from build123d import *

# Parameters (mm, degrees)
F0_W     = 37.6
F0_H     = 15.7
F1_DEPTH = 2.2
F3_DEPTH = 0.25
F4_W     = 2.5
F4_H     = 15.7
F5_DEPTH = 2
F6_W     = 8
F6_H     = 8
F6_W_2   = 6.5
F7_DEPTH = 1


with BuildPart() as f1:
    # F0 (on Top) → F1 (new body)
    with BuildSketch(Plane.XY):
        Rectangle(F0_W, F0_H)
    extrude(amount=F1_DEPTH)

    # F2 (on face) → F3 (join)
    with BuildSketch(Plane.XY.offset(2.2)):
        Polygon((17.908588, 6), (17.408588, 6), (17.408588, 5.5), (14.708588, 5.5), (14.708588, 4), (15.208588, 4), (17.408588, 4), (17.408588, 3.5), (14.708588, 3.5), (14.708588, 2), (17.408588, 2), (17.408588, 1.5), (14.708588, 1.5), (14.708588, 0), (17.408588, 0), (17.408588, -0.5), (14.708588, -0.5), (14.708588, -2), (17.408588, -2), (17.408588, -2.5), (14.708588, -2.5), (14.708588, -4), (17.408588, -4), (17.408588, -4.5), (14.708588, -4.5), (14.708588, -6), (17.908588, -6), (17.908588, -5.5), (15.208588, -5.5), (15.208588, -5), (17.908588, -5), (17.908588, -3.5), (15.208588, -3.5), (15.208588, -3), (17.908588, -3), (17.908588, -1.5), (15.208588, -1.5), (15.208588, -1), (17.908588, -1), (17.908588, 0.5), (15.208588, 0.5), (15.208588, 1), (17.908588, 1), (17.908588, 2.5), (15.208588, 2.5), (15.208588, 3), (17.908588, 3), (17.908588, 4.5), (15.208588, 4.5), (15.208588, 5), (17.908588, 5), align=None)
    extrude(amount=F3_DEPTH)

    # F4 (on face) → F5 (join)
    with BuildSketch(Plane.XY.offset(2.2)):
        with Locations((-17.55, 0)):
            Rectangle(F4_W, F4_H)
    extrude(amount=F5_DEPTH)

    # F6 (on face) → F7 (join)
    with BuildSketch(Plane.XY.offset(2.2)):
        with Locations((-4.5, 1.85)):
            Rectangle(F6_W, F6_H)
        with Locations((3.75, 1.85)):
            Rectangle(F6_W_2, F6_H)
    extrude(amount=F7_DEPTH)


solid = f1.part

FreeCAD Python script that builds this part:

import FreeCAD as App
import Part
import Sketcher

V = App.Vector

doc = App.newDocument("Part")
body = doc.addObject("PartDesign::Body", "Body")

sketch1 = doc.addObject("Sketcher::SketchObject", "Sketch")
body.addObject(sketch1)
sketch1.AttachmentSupport = (doc.XY_Plane, [""])
sketch1.MapMode = "FlatFace"
sketch1.addGeometry([
    Part.LineSegment(V(-19, 8, 0), V(-19, -8, 0)),
    Part.LineSegment(V(-19, -8, 0), V(19, -8, 0)),
    Part.LineSegment(V(19, -8, 0), V(19, 8, 0)),
    Part.LineSegment(V(19, 8, 0), V(-19, 8, 0)),
], False)
sketch1.addConstraint([
    Sketcher.Constraint("Coincident", 0, 2, 1, 1),
    Sketcher.Constraint("Coincident", 1, 2, 2, 1),
    Sketcher.Constraint("Coincident", 2, 2, 3, 1),
    Sketcher.Constraint("Coincident", 3, 2, 0, 1),
    Sketcher.Constraint("Vertical", 0),
    Sketcher.Constraint("Horizontal", 1),
    Sketcher.Constraint("Vertical", 2),
    Sketcher.Constraint("Horizontal", 3),
    Sketcher.Constraint("Symmetric", 0, 2, 2, 2, -1, 1),
    Sketcher.Constraint("DistanceX", 1, 1, 1, 2, 37.6),
    Sketcher.Constraint("DistanceY", 0, 2, 0, 1, 15.7),
])
pad1 = doc.addObject("PartDesign::Pad", "Pad")
body.addObject(pad1)
pad1.Profile = sketch1
pad1.Length = 2.2

sketch2 = doc.addObject("Sketcher::SketchObject", "Sketch001")
body.addObject(sketch2)
sketch2.AttachmentSupport = (doc.XY_Plane, [""])
sketch2.MapMode = "FlatFace"
sketch2.AttachmentOffset = App.Placement(V(0, 0, 2.2), App.Rotation())
sketch2.addGeometry([
    Part.LineSegment(V(17.9, 6, 0), V(17.4, 6, 0)),
    Part.LineSegment(V(17.4, 6, 0), V(17.4, 5.5, 0)),
    Part.LineSegment(V(17.4, 5.5, 0), V(14.7, 5.5, 0)),
    Part.LineSegment(V(14.7, 5.5, 0), V(14.7, 4, 0)),
    Part.LineSegment(V(14.7, 4, 0), V(17.4, 4, 0)),
    Part.LineSegment(V(17.4, 4, 0), V(17.4, 3.5, 0)),
    Part.LineSegment(V(17.4, 3.5, 0), V(14.7, 3.5, 0)),
    Part.LineSegment(V(14.7, 3.5, 0), V(14.7, 2, 0)),
    Part.LineSegment(V(14.7, 2, 0), V(17.4, 2, 0)),
    Part.LineSegment(V(17.4, 2, 0), V(17.4, 1.5, 0)),
    Part.LineSegment(V(17.4, 1.5, 0), V(14.7, 1.5, 0)),
    Part.LineSegment(V(14.7, 1.5, 0), V(14.7, 0, 0)),
    Part.LineSegment(V(14.7, 0, 0), V(17.4, 0, 0)),
    Part.LineSegment(V(17.4, 0, 0), V(17.4, -0.5, 0)),
    Part.LineSegment(V(17.4, -0.5, 0), V(14.7, -0.5, 0)),
    Part.LineSegment(V(14.7, -0.5, 0), V(14.7, -2, 0)),
    Part.LineSegment(V(14.7, -2, 0), V(17.4, -2, 0)),
    Part.LineSegment(V(17.4, -2, 0), V(17.4, -2.5, 0)),
    Part.LineSegment(V(17.4, -2.5, 0), V(14.7, -2.5, 0)),
    Part.LineSegment(V(14.7, -2.5, 0), V(14.7, -4, 0)),
    Part.LineSegment(V(14.7, -4, 0), V(17.4, -4, 0)),
    Part.LineSegment(V(17.4, -4, 0), V(17.4, -4.5, 0)),
    Part.LineSegment(V(17.4, -4.5, 0), V(14.7, -4.5, 0)),
    Part.LineSegment(V(14.7, -4.5, 0), V(14.7, -6, 0)),
    Part.LineSegment(V(14.7, -6, 0), V(17.9, -6, 0)),
    Part.LineSegment(V(17.9, -6, 0), V(17.9, -5.5, 0)),
    Part.LineSegment(V(17.9, -5.5, 0), V(15.2, -5.5, 0)),
    Part.LineSegment(V(15.2, -5.5, 0), V(15.2, -5, 0)),
    Part.LineSegment(V(15.2, -5, 0), V(17.9, -5, 0)),
    Part.LineSegment(V(17.9, -5, 0), V(17.9, -3.5, 0)),
    Part.LineSegment(V(17.9, -3.5, 0), V(15.2, -3.5, 0)),
    Part.LineSegment(V(15.2, -3.5, 0), V(15.2, -3, 0)),
    Part.LineSegment(V(15.2, -3, 0), V(17.9, -3, 0)),
    Part.LineSegment(V(17.9, -3, 0), V(17.9, -1.5, 0)),
    Part.LineSegment(V(17.9, -1.5, 0), V(15.2, -1.5, 0)),
    Part.LineSegment(V(15.2, -1.5, 0), V(15.2, -1, 0)),
    Part.LineSegment(V(15.2, -1, 0), V(17.9, -1, 0)),
    Part.LineSegment(V(17.9, -1, 0), V(17.9, 0.5, 0)),
    Part.LineSegment(V(17.9, 0.5, 0), V(15.2, 0.5, 0)),
    Part.LineSegment(V(15.2, 0.5, 0), V(15.2, 1, 0)),
    Part.LineSegment(V(15.2, 1, 0), V(17.9, 1, 0)),
    Part.LineSegment(V(17.9, 1, 0), V(17.9, 2.5, 0)),
    Part.LineSegment(V(17.9, 2.5, 0), V(15.2, 2.5, 0)),
    Part.LineSegment(V(15.2, 2.5, 0), V(15.2, 3, 0)),
    Part.LineSegment(V(15.2, 3, 0), V(17.9, 3, 0)),
    Part.LineSegment(V(17.9, 3, 0), V(17.9, 4.5, 0)),
    Part.LineSegment(V(17.9, 4.5, 0), V(15.2, 4.5, 0)),
    Part.LineSegment(V(15.2, 4.5, 0), V(15.2, 5, 0)),
    Part.LineSegment(V(15.2, 5, 0), V(17.9, 5, 0)),
    Part.LineSegment(V(17.9, 5, 0), V(17.9, 6, 0)),
], False)
sketch2.addConstraint([
    Sketcher.Constraint("Coincident", 0, 2, 1, 1),
    Sketcher.Constraint("Coincident", 1, 2, 2, 1),
    Sketcher.Constraint("Coincident", 2, 2, 3, 1),
    Sketcher.Constraint("Coincident", 3, 2, 4, 1),
    Sketcher.Constraint("Coincident", 4, 2, 5, 1),
    Sketcher.Constraint("Coincident", 5, 2, 6, 1),
    Sketcher.Constraint("Coincident", 6, 2, 7, 1),
    Sketcher.Constraint("Coincident", 7, 2, 8, 1),
    Sketcher.Constraint("Coincident", 8, 2, 9, 1),
    Sketcher.Constraint("Coincident", 9, 2, 10, 1),
    Sketcher.Constraint("Coincident", 10, 2, 11, 1),
    Sketcher.Constraint("Coincident", 11, 2, 12, 1),
    Sketcher.Constraint("Coincident", 12, 2, 13, 1),
    Sketcher.Constraint("Coincident", 13, 2, 14, 1),
    Sketcher.Constraint("Coincident", 14, 2, 15, 1),
    Sketcher.Constraint("Coincident", 15, 2, 16, 1),
    Sketcher.Constraint("Coincident", 16, 2, 17, 1),
    Sketcher.Constraint("Coincident", 17, 2, 18, 1),
    Sketcher.Constraint("Coincident", 18, 2, 19, 1),
    Sketcher.Constraint("Coincident", 19, 2, 20, 1),
    Sketcher.Constraint("Coincident", 20, 2, 21, 1),
    Sketcher.Constraint("Coincident", 21, 2, 22, 1),
    Sketcher.Constraint("Coincident", 22, 2, 23, 1),
    Sketcher.Constraint("Coincident", 23, 2, 24, 1),
    Sketcher.Constraint("Coincident", 24, 2, 25, 1),
    Sketcher.Constraint("Coincident", 25, 2, 26, 1),
    Sketcher.Constraint("Coincident", 26, 2, 27, 1),
    Sketcher.Constraint("Coincident", 27, 2, 28, 1),
    Sketcher.Constraint("Coincident", 28, 2, 29, 1),
    Sketcher.Constraint("Coincident", 29, 2, 30, 1),
    Sketcher.Constraint("Coincident", 30, 2, 31, 1),
    Sketcher.Constraint("Coincident", 31, 2, 32, 1),
    Sketcher.Constraint("Coincident", 32, 2, 33, 1),
    Sketcher.Constraint("Coincident", 33, 2, 34, 1),
    Sketcher.Constraint("Coincident", 34, 2, 35, 1),
    Sketcher.Constraint("Coincident", 35, 2, 36, 1),
    Sketcher.Constraint("Coincident", 36, 2, 37, 1),
    Sketcher.Constraint("Coincident", 37, 2, 38, 1),
    Sketcher.Constraint("Coincident", 38, 2, 39, 1),
    Sketcher.Constraint("Coincident", 39, 2, 40, 1),
    Sketcher.Constraint("Coincident", 40, 2, 41, 1),
    Sketcher.Constraint("Coincident", 41, 2, 42, 1),
    Sketcher.Constraint("Coincident", 42, 2, 43, 1),
    Sketcher.Constraint("Coincident", 43, 2, 44, 1),
    Sketcher.Constraint("Coincident", 44, 2, 45, 1),
    Sketcher.Constraint("Coincident", 45, 2, 46, 1),
    Sketcher.Constraint("Coincident", 46, 2, 47, 1),
    Sketcher.Constraint("Coincident", 47, 2, 48, 1),
    Sketcher.Constraint("Coincident", 48, 2, 49, 1),
    Sketcher.Constraint("Coincident", 49, 2, 0, 1),
    Sketcher.Constraint("Horizontal", 0),
    Sketcher.Constraint("Vertical", 1),
    Sketcher.Constraint("Horizontal", 2),
    Sketcher.Constraint("Vertical", 3),
    Sketcher.Constraint("Horizontal", 4),
    Sketcher.Constraint("Vertical", 5),
    Sketcher.Constraint("Horizontal", 6),
    Sketcher.Constraint("Vertical", 7),
    Sketcher.Constraint("Horizontal", 8),
    Sketcher.Constraint("Vertical", 9),
    Sketcher.Constraint("Horizontal", 10),
    Sketcher.Constraint("Vertical", 11),
    Sketcher.Constraint("Horizontal", 12),
    Sketcher.Constraint("Vertical", 13),
    Sketcher.Constraint("Horizontal", 14),
    Sketcher.Constraint("Vertical", 15),
    Sketcher.Constraint("Horizontal", 16),
    Sketcher.Constraint("Vertical", 17),
    Sketcher.Constraint("Horizontal", 18),
    Sketcher.Constraint("Vertical", 19),
    Sketcher.Constraint("Horizontal", 20),
    Sketcher.Constraint("Vertical", 21),
    Sketcher.Constraint("Horizontal", 22),
    Sketcher.Constraint("Vertical", 23),
    Sketcher.Constraint("Horizontal", 24),
    Sketcher.Constraint("Vertical", 25),
    Sketcher.Constraint("Horizontal", 26),
    Sketcher.Constraint("Vertical", 27),
    Sketcher.Constraint("Horizontal", 28),
    Sketcher.Constraint("Vertical", 29),
    Sketcher.Constraint("Horizontal", 30),
    Sketcher.Constraint("Vertical", 31),
    Sketcher.Constraint("Horizontal", 32),
    Sketcher.Constraint("Vertical", 33),
    Sketcher.Constraint("Horizontal", 34),
    Sketcher.Constraint("Vertical", 35),
    Sketcher.Constraint("Horizontal", 36),
    Sketcher.Constraint("Vertical", 37),
    Sketcher.Constraint("Horizontal", 38),
    Sketcher.Constraint("Vertical", 39),
    Sketcher.Constraint("Horizontal", 40),
    Sketcher.Constraint("Vertical", 41),
    Sketcher.Constraint("Horizontal", 42),
    Sketcher.Constraint("Vertical", 43),
    Sketcher.Constraint("Horizontal", 44),
    Sketcher.Constraint("Vertical", 45),
    Sketcher.Constraint("Horizontal", 46),
    Sketcher.Constraint("Vertical", 47),
    Sketcher.Constraint("Horizontal", 48),
    Sketcher.Constraint("Vertical", 49),
    Sketcher.Constraint("Symmetric", 7, 2, 15, 2, -1),
    Sketcher.Constraint("Symmetric", 3, 2, 19, 2, -1),
    Sketcher.Constraint("Symmetric", 35, 2, 39, 2, -1),
    Sketcher.Constraint("Symmetric", 31, 2, 43, 2, -1),
    Sketcher.Constraint("Symmetric", 27, 2, 47, 2, -1),
    Sketcher.Constraint("Symmetric", 24, 2, 49, 2, -1),
    Sketcher.Constraint("PointOnObject", 11, 2, -1),
    Sketcher.Constraint("Vertical", 1, 2, 4, 2),
    Sketcher.Constraint("Vertical", 3, 2, 6, 2),
    Sketcher.Constraint("Vertical", 5, 2, 8, 2),
    Sketcher.Constraint("Vertical", 7, 2, 10, 2),
    Sketcher.Constraint("Vertical", 9, 2, 12, 2),
    Sketcher.Constraint("Vertical", 13, 2, 16, 2),
    Sketcher.Constraint("Vertical", 17, 2, 20, 2),
    Sketcher.Constraint("Vertical", 19, 2, 22, 2),
    Sketcher.Constraint("Vertical", 25, 2, 28, 2),
    Sketcher.Constraint("Vertical", 27, 2, 30, 2),
    Sketcher.Constraint("Vertical", 29, 2, 32, 2),
    Sketcher.Constraint("Vertical", 31, 2, 34, 2),
    Sketcher.Constraint("Vertical", 33, 2, 36, 2),
    Sketcher.Constraint("Vertical", 37, 2, 40, 2),
    Sketcher.Constraint("Vertical", 41, 2, 44, 2),
    Sketcher.Constraint("Equal", 22, 26),
    Sketcher.Constraint("Equal", 0, 1),
    Sketcher.Constraint("Equal", 1, 5),
    Sketcher.Constraint("Equal", 3, 7),
    Sketcher.Constraint("Equal", 5, 9),
    Sketcher.Constraint("Equal", 7, 11),
    Sketcher.Constraint("Equal", 9, 13),
    Sketcher.Constraint("Equal", 13, 17),
    Sketcher.Constraint("Equal", 17, 21),
    Sketcher.Constraint("Equal", 21, 25),
    Sketcher.Constraint("Equal", 25, 27),
    Sketcher.Constraint("Equal", 23, 29),
    Sketcher.Constraint("Equal", 27, 31),
    Sketcher.Constraint("Equal", 29, 33),
    Sketcher.Constraint("Equal", 31, 35),
    Sketcher.Constraint("Equal", 33, 37),
    Sketcher.Constraint("Equal", 35, 39),
    Sketcher.Constraint("Equal", 37, 41),
    Sketcher.Constraint("Equal", 41, 45),
    Sketcher.Constraint("DistanceY", 49, 1, 49, 2, 1.0),
    Sketcher.Constraint("DistanceX", 2, 2, 2, 1, 2.7),
    Sketcher.Constraint("DistanceX", -1, 1, 0, 2, 17.408588),
])
pad2 = doc.addObject("PartDesign::Pad", "Pad001")
body.addObject(pad2)
pad2.Profile = sketch2
pad2.Length = 0.25

sketch3 = doc.addObject("Sketcher::SketchObject", "Sketch002")
body.addObject(sketch3)
sketch3.AttachmentSupport = (doc.XY_Plane, [""])
sketch3.MapMode = "FlatFace"
sketch3.AttachmentOffset = App.Placement(V(0, 0, 2.2), App.Rotation())
sketch3.addGeometry([
    Part.LineSegment(V(-18.8, 7.8, 0), V(-18.8, -7.8, 0)),
    Part.LineSegment(V(-18.8, -7.8, 0), V(-16.3, -7.8, 0)),
    Part.LineSegment(V(-16.3, -7.8, 0), V(-16.3, 7.8, 0)),
    Part.LineSegment(V(-16.3, 7.8, 0), V(-18.8, 7.8, 0)),
], False)
sketch3.addConstraint([
    Sketcher.Constraint("Coincident", 0, 2, 1, 1),
    Sketcher.Constraint("Coincident", 1, 2, 2, 1),
    Sketcher.Constraint("Coincident", 2, 2, 3, 1),
    Sketcher.Constraint("Coincident", 3, 2, 0, 1),
    Sketcher.Constraint("Vertical", 0),
    Sketcher.Constraint("Horizontal", 1),
    Sketcher.Constraint("Vertical", 2),
    Sketcher.Constraint("Horizontal", 3),
    Sketcher.Constraint("DistanceX", 1, 1, 1, 2, 2.5),
    Sketcher.Constraint("DistanceY", 0, 2, 0, 1, 15.7),
    Sketcher.Constraint("DistanceX", 0, 2, -1, 1, 18.8),
    Sketcher.Constraint("DistanceY", 0, 2, -1, 1, 7.85),
])
pad3 = doc.addObject("PartDesign::Pad", "Pad002")
body.addObject(pad3)
pad3.Profile = sketch3
pad3.Length = 2

sketch4 = doc.addObject("Sketcher::SketchObject", "Sketch003")
body.addObject(sketch4)
sketch4.AttachmentSupport = (doc.XY_Plane, [""])
sketch4.MapMode = "FlatFace"
sketch4.AttachmentOffset = App.Placement(V(0, 0, 2.2), App.Rotation())
sketch4.addGeometry([
    Part.LineSegment(V(-8.5, 5.85, 0), V(-8.5, -2.15, 0)),
    Part.LineSegment(V(-8.5, -2.15, 0), V(-0.5, -2.15, 0)),
    Part.LineSegment(V(-0.5, -2.15, 0), V(-0.5, 5.85, 0)),
    Part.LineSegment(V(-0.5, 5.85, 0), V(-8.5, 5.85, 0)),
    Part.LineSegment(V(0.5, 5.85, 0), V(0.5, -2.15, 0)),
    Part.LineSegment(V(0.5, -2.15, 0), V(7, -2.15, 0)),
    Part.LineSegment(V(7, -2.15, 0), V(7, 5.85, 0)),
    Part.LineSegment(V(7, 5.85, 0), V(0.5, 5.85, 0)),
], False)
sketch4.addConstraint([
    Sketcher.Constraint("Coincident", 0, 2, 1, 1),
    Sketcher.Constraint("Coincident", 1, 2, 2, 1),
    Sketcher.Constraint("Coincident", 2, 2, 3, 1),
    Sketcher.Constraint("Coincident", 3, 2, 0, 1),
    Sketcher.Constraint("Coincident", 4, 2, 5, 1),
    Sketcher.Constraint("Coincident", 5, 2, 6, 1),
    Sketcher.Constraint("Coincident", 6, 2, 7, 1),
    Sketcher.Constraint("Coincident", 7, 2, 4, 1),
    Sketcher.Constraint("Vertical", 0),
    Sketcher.Constraint("Horizontal", 1),
    Sketcher.Constraint("Vertical", 2),
    Sketcher.Constraint("Horizontal", 3),
    Sketcher.Constraint("Vertical", 4),
    Sketcher.Constraint("Horizontal", 5),
    Sketcher.Constraint("Vertical", 6),
    Sketcher.Constraint("Horizontal", 7),
    Sketcher.Constraint("Symmetric", 1, 2, 4, 2, -2),
    Sketcher.Constraint("Horizontal", 3, 2, 6, 2),
    Sketcher.Constraint("Equal", 3, 0),
    Sketcher.Constraint("DistanceX", 1, 1, 1, 2, 8.0),
    Sketcher.Constraint("DistanceX", 5, 1, 5, 2, 6.5),
    Sketcher.Constraint("DistanceX", -1, 1, 5, 2, 7.0),
    Sketcher.Constraint("DistanceY", 0, 2, -1, 1, 2.15),
])
pad4 = doc.addObject("PartDesign::Pad", "Pad003")
body.addObject(pad4)
pad4.Profile = sketch4
pad4.Length = 1

doc.recompute()
